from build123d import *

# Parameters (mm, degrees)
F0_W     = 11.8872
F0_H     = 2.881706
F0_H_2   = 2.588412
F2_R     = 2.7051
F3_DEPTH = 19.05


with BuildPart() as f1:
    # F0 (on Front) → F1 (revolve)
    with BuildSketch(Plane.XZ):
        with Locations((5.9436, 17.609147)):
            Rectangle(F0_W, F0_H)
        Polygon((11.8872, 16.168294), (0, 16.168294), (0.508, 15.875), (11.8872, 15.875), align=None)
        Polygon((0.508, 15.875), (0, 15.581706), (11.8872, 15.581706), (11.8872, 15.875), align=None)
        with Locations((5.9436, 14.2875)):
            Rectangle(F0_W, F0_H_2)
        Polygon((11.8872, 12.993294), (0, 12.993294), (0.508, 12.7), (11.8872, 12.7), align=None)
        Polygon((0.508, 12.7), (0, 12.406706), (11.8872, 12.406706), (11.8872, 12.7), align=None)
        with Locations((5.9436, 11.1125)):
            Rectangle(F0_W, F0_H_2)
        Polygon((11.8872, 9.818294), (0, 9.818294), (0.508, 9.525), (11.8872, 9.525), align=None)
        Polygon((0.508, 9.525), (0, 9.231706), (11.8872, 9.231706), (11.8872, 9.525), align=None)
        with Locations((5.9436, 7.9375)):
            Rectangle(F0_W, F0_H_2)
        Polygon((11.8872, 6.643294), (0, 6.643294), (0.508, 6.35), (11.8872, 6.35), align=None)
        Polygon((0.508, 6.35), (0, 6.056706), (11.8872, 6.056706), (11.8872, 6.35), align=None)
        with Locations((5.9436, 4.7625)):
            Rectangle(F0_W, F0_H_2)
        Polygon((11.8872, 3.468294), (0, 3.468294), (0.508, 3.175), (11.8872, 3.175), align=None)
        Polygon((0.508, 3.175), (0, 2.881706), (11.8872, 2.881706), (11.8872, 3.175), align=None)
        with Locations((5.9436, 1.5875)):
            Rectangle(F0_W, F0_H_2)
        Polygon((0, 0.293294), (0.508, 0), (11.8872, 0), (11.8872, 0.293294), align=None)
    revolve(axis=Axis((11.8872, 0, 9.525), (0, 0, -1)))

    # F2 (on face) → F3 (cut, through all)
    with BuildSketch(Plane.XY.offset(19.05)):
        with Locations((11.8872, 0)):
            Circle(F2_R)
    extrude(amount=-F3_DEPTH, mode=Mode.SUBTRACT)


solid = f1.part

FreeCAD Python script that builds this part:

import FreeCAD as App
import Part
import Sketcher
from FreeCAD import Vector
Q = App.Units.Quantity


def add_polygon(sketch, points):
    """Adds a closed chain of lines whose ends are joined by coincident constraints."""
    first, n = sketch.GeometryCount, len(points)
    for a, b in zip(points, points[1:] + points[:1]):
        sketch.addGeometry(Part.LineSegment(App.Vector(*a, 0), App.Vector(*b, 0)), False)
    for i in range(n):
        sketch.addConstraint(Sketcher.Constraint("Coincident", first + i, 2, first + (i + 1) % n, 1))

doc = App.newDocument("Part")
body = doc.addObject("PartDesign::Body", "Body")

# Sketch on XZ plane
sketch1 = body.newObject("Sketcher::SketchObject", "Sketch")
sketch1.AttachmentSupport = (doc.getObject("XZ_Plane"), [""])
sketch1.MapMode = "FlatFace"
add_polygon(sketch1, [(0, 19.1), (0, 16.2), (0.5, 15.9), (0, 15.6), (0, 13), (0.5, 12.7), (0, 12.4), (0, 9.8), (0.5, 9.5), (0, 9.2), (0, 6.6), (0.5, 6.3), (0, 6.1), (0, 3.5), (0.5, 3.2), (0, 2.9), (0, 0.3), (0.5, 0), (11.9, 0), (11.9, 19.1)])  # lines 0-19
sketch1.addGeometry(Part.LineSegment(Vector(11.9, 19.1, 0), Vector(11.9, 0, 0)), True)  # axis
sketch1.addConstraint([
    Sketcher.Constraint("Vertical", 0),
    Sketcher.Constraint("Vertical", 3),
    Sketcher.Constraint("Vertical", 6),
    Sketcher.Constraint("Vertical", 9),
    Sketcher.Constraint("Vertical", 12),
    Sketcher.Constraint("Vertical", 15),
    Sketcher.Constraint("Horizontal", 17),
    Sketcher.Constraint("Vertical", 18),
    Sketcher.Constraint("Horizontal", 19),
    Sketcher.Constraint("Vertical", 20),
    Sketcher.Constraint("Coincident", 20, 1, 18, 2),
    Sketcher.Constraint("PointOnObject", 0, 2, -2),
    Sketcher.Constraint("PointOnObject", 2, 2, -2),
    Sketcher.Constraint("PointOnObject", 5, 2, -2),
    Sketcher.Constraint("PointOnObject", 8, 2, -2),
    Sketcher.Constraint("PointOnObject", 11, 2, -2),
    Sketcher.Constraint("PointOnObject", 14, 2, -2),
    Sketcher.Constraint("PointOnObject", 16, 2, -1),
    Sketcher.Constraint("PointOnObject", 20, 2, -1),
    Sketcher.Constraint("Parallel", 1, 4),
    Sketcher.Constraint("Parallel", 2, 5),
    Sketcher.Constraint("Parallel", 4, 7),
    Sketcher.Constraint("Parallel", 5, 8),
    Sketcher.Constraint("Parallel", 7, 10),
    Sketcher.Constraint("Parallel", 8, 11),
    Sketcher.Constraint("Parallel", 10, 13),
    Sketcher.Constraint("Parallel", 11, 14),
    Sketcher.Constraint("Parallel", 13, 16),
    Sketcher.Constraint("Vertical", 1, 2, 4, 2),
    Sketcher.Constraint("Vertical", 4, 2, 7, 2),
    Sketcher.Constraint("Vertical", 7, 2, 10, 2),
    Sketcher.Constraint("Vertical", 10, 2, 13, 2),
    Sketcher.Constraint("Vertical", 13, 2, 16, 2),
    Sketcher.Constraint("Equal", 3, 6),
    Sketcher.Constraint("Equal", 6, 9),
    Sketcher.Constraint("Equal", 9, 12),
    Sketcher.Constraint("Equal", 12, 15),
    Sketcher.Constraint("Equal", 1, 2),
    Sketcher.Constraint("Angle", 1, Q("-30.000005 deg")),
    Sketcher.Constraint("DistanceY", 18, 1, 18, 2, Q("0.75 in")),
    Sketcher.Constraint("DistanceY", -1, 1, 4, 2, Q("0.5 in")),
    Sketcher.Constraint("DistanceX", 17, 1, 17, 2, Q("0.448 in")),
    Sketcher.Constraint("DistanceX", 19, 2, 19, 1, Q("0.468 in")),
])
revolution = body.newObject("PartDesign::Revolution", "Revolution")
revolution.Profile = sketch1
revolution.ReferenceAxis = (sketch1, ["Axis0"])
revolution.Angle = 360

# Sketch on XY plane
sketch2 = body.newObject("Sketcher::SketchObject", "Sketch001")
sketch2.AttachmentSupport = (doc.getObject("XY_Plane"), [""])
sketch2.MapMode = "FlatFace"
sketch2.AttachmentOffset = App.Placement(Vector(0, 0, 0.75 * 25.4), App.Rotation())
sketch2.addGeometry(Part.Circle(Vector(11.9, 0, 0), Vector(0, 0, 1), 2.7), False)
sketch2.addConstraint([
    Sketcher.Constraint("PointOnObject", 0, 3, -1),
    Sketcher.Constraint("Diameter", 0, Q("0.213 in")),
    Sketcher.Constraint("DistanceX", -1, 1, 0, 3, Q("0.468 in")),
])
pocket1 = body.newObject("PartDesign::Pocket", "Pocket")
pocket1.Profile = sketch2
pocket1.Type = "ThroughAll"

doc.recompute()
